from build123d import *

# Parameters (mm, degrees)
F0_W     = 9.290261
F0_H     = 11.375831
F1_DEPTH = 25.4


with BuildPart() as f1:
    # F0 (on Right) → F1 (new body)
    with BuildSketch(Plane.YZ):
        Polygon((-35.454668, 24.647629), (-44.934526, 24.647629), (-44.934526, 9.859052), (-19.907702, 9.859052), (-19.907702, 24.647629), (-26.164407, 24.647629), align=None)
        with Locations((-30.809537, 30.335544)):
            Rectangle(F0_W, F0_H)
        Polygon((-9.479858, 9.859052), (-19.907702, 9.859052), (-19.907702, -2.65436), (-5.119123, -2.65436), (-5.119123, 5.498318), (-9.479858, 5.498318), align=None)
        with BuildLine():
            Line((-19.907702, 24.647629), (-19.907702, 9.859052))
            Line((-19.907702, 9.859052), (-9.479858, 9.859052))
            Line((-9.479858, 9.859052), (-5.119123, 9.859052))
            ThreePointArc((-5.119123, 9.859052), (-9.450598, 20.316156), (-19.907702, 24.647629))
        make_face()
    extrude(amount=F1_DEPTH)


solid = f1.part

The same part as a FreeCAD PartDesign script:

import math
import FreeCAD as App
import Part
import Sketcher

V = App.Vector
Q = App.Units.Quantity

doc = App.newDocument("Part")
body = doc.addObject("PartDesign::Body", "Body")

sketch1 = body.newObject("Sketcher::SketchObject", "Sketch")
sketch1.AttachmentSupport = (doc.getObject("YZ_Plane"), [""])
sketch1.MapMode = "FlatFace"
sketch1.addGeometry(Part.LineSegment(V(-35.454667, 24.647629, 0), V(-44.934526, 24.647629, 0)), False)
sketch1.addGeometry(Part.LineSegment(V(-44.934526, 24.647629, 0), V(-44.934526, 9.859052, 0)), False)
sketch1.addGeometry(Part.LineSegment(V(-44.934526, 9.859052, 0), V(-19.907702, 9.859052, 0)), False)
sketch1.addGeometry(Part.LineSegment(V(-19.907702, 9.859052, 0), V(-19.907702, -2.65436, 0)), False)
sketch1.addGeometry(Part.LineSegment(V(-19.907702, -2.65436, 0), V(-5.119123, -2.65436, 0)), False)
sketch1.addGeometry(Part.LineSegment(V(-5.119123, -2.65436, 0), V(-5.119123, 5.498318, 0)), False)
sketch1.addGeometry(Part.LineSegment(V(-5.119123, 5.498318, 0), V(-9.479858, 5.498318, 0)), False)
sketch1.addGeometry(Part.LineSegment(V(-9.479858, 5.498318, 0), V(-9.479858, 9.859052, 0)), False)
sketch1.addGeometry(Part.LineSegment(V(-9.479858, 9.859052, 0), V(-5.119123, 9.859052, 0)), False)
sketch1.addGeometry(Part.ArcOfCircle(Part.Circle(V(-19.9077, 9.859052, 0), V(0, 0, 1), 14.788577), math.radians(0.000001), math.radians(90.000007)), False)
sketch1.addGeometry(Part.LineSegment(V(-19.907702, 24.647629, 0), V(-26.164406, 24.647629, 0)), False)
sketch1.addGeometry(Part.LineSegment(V(-26.164406, 24.647629, 0), V(-26.164406, 36.02346, 0)), False)
sketch1.addGeometry(Part.LineSegment(V(-26.164406, 36.02346, 0), V(-35.454667, 36.02346, 0)), False)
sketch1.addGeometry(Part.LineSegment(V(-35.454667, 36.02346, 0), V(-35.454667, 24.647629, 0)), False)
sketch1.addConstraint(Sketcher.Constraint("Coincident", 0, 2, 1, 1))
sketch1.addConstraint(Sketcher.Constraint("Coincident", 1, 2, 2, 1))
sketch1.addConstraint(Sketcher.Constraint("Coincident", 2, 2, 3, 1))
sketch1.addConstraint(Sketcher.Constraint("Coincident", 3, 2, 4, 1))
sketch1.addConstraint(Sketcher.Constraint("Coincident", 4, 2, 5, 1))
sketch1.addConstraint(Sketcher.Constraint("Coincident", 5, 2, 6, 1))
sketch1.addConstraint(Sketcher.Constraint("Coincident", 6, 2, 7, 1))
sketch1.addConstraint(Sketcher.Constraint("Coincident", 7, 2, 8, 1))
sketch1.addConstraint(Sketcher.Constraint("Coincident", 8, 2, 9, 1))
sketch1.addConstraint(Sketcher.Constraint("Tangent", 9, 2, 10, 1))
sketch1.addConstraint(Sketcher.Constraint("Coincident", 10, 2, 11, 1))
sketch1.addConstraint(Sketcher.Constraint("Coincident", 11, 2, 12, 1))
sketch1.addConstraint(Sketcher.Constraint("Coincident", 12, 2, 13, 1))
sketch1.addConstraint(Sketcher.Constraint("Coincident", 13, 2, 0, 1))
sketch1.addConstraint(Sketcher.Constraint("Horizontal", 0))
sketch1.addConstraint(Sketcher.Constraint("Vertical", 1))
sketch1.addConstraint(Sketcher.Constraint("Horizontal", 2))
sketch1.addConstraint(Sketcher.Constraint("Vertical", 3))
sketch1.addConstraint(Sketcher.Constraint("Horizontal", 4))
sketch1.addConstraint(Sketcher.Constraint("Vertical", 5))
sketch1.addConstraint(Sketcher.Constraint("Horizontal", 6))
sketch1.addConstraint(Sketcher.Constraint("Vertical", 7))
sketch1.addConstraint(Sketcher.Constraint("Horizontal", 8))
sketch1.addConstraint(Sketcher.Constraint("Horizontal", 10))
sketch1.addConstraint(Sketcher.Constraint("Vertical", 11))
sketch1.addConstraint(Sketcher.Constraint("Horizontal", 12))
sketch1.addConstraint(Sketcher.Constraint("Vertical", 13))
sketch1.addConstraint(Sketcher.Constraint("Coincident", 2, 2, 9, 3))
sketch1.addConstraint(Sketcher.Constraint("Horizontal", 2, 2, 7, 2))
sketch1.addConstraint(Sketcher.Constraint("Horizontal", 0, 2, 9, 2))
sketch1.addConstraint(Sketcher.Constraint("Vertical", 5, 2, 8, 2))
sketch1.addConstraint(Sketcher.Constraint("Equal", 8, 7))
sketch1.addConstraint(Sketcher.Constraint("Radius", 9, 14.788577))
sketch1.addConstraint(Sketcher.Constraint("DistanceX", 0, 2, 0, 1, 9.479858))
sketch1.addConstraint(Sketcher.Constraint("DistanceX", 12, 2, 12, 1, 9.290261))
sketch1.addConstraint(Sketcher.Constraint("DistanceY", 11, 1, 11, 2, 11.375831))
sketch1.addConstraint(Sketcher.Constraint("DistanceX", 9, 3, -1, 1, 19.9077))
sketch1.addConstraint(Sketcher.Constraint("DistanceX", 2, 1, 2, 2, 25.026824))
sketch1.addConstraint(Sketcher.Constraint("DistanceX", 6, 2, 6, 1, 4.360735))
sketch1.addConstraint(Sketcher.Constraint("DistanceY", 3, 2, 3, 1, 12.513412))
sketch1.addConstraint(Sketcher.Constraint("DistanceY", -1, 1, 9, 3, 9.859052))
pad1 = body.newObject("PartDesign::Pad", "Pad")
pad1.Profile = sketch1
pad1.Length = Q("1 in")

doc.recompute()
